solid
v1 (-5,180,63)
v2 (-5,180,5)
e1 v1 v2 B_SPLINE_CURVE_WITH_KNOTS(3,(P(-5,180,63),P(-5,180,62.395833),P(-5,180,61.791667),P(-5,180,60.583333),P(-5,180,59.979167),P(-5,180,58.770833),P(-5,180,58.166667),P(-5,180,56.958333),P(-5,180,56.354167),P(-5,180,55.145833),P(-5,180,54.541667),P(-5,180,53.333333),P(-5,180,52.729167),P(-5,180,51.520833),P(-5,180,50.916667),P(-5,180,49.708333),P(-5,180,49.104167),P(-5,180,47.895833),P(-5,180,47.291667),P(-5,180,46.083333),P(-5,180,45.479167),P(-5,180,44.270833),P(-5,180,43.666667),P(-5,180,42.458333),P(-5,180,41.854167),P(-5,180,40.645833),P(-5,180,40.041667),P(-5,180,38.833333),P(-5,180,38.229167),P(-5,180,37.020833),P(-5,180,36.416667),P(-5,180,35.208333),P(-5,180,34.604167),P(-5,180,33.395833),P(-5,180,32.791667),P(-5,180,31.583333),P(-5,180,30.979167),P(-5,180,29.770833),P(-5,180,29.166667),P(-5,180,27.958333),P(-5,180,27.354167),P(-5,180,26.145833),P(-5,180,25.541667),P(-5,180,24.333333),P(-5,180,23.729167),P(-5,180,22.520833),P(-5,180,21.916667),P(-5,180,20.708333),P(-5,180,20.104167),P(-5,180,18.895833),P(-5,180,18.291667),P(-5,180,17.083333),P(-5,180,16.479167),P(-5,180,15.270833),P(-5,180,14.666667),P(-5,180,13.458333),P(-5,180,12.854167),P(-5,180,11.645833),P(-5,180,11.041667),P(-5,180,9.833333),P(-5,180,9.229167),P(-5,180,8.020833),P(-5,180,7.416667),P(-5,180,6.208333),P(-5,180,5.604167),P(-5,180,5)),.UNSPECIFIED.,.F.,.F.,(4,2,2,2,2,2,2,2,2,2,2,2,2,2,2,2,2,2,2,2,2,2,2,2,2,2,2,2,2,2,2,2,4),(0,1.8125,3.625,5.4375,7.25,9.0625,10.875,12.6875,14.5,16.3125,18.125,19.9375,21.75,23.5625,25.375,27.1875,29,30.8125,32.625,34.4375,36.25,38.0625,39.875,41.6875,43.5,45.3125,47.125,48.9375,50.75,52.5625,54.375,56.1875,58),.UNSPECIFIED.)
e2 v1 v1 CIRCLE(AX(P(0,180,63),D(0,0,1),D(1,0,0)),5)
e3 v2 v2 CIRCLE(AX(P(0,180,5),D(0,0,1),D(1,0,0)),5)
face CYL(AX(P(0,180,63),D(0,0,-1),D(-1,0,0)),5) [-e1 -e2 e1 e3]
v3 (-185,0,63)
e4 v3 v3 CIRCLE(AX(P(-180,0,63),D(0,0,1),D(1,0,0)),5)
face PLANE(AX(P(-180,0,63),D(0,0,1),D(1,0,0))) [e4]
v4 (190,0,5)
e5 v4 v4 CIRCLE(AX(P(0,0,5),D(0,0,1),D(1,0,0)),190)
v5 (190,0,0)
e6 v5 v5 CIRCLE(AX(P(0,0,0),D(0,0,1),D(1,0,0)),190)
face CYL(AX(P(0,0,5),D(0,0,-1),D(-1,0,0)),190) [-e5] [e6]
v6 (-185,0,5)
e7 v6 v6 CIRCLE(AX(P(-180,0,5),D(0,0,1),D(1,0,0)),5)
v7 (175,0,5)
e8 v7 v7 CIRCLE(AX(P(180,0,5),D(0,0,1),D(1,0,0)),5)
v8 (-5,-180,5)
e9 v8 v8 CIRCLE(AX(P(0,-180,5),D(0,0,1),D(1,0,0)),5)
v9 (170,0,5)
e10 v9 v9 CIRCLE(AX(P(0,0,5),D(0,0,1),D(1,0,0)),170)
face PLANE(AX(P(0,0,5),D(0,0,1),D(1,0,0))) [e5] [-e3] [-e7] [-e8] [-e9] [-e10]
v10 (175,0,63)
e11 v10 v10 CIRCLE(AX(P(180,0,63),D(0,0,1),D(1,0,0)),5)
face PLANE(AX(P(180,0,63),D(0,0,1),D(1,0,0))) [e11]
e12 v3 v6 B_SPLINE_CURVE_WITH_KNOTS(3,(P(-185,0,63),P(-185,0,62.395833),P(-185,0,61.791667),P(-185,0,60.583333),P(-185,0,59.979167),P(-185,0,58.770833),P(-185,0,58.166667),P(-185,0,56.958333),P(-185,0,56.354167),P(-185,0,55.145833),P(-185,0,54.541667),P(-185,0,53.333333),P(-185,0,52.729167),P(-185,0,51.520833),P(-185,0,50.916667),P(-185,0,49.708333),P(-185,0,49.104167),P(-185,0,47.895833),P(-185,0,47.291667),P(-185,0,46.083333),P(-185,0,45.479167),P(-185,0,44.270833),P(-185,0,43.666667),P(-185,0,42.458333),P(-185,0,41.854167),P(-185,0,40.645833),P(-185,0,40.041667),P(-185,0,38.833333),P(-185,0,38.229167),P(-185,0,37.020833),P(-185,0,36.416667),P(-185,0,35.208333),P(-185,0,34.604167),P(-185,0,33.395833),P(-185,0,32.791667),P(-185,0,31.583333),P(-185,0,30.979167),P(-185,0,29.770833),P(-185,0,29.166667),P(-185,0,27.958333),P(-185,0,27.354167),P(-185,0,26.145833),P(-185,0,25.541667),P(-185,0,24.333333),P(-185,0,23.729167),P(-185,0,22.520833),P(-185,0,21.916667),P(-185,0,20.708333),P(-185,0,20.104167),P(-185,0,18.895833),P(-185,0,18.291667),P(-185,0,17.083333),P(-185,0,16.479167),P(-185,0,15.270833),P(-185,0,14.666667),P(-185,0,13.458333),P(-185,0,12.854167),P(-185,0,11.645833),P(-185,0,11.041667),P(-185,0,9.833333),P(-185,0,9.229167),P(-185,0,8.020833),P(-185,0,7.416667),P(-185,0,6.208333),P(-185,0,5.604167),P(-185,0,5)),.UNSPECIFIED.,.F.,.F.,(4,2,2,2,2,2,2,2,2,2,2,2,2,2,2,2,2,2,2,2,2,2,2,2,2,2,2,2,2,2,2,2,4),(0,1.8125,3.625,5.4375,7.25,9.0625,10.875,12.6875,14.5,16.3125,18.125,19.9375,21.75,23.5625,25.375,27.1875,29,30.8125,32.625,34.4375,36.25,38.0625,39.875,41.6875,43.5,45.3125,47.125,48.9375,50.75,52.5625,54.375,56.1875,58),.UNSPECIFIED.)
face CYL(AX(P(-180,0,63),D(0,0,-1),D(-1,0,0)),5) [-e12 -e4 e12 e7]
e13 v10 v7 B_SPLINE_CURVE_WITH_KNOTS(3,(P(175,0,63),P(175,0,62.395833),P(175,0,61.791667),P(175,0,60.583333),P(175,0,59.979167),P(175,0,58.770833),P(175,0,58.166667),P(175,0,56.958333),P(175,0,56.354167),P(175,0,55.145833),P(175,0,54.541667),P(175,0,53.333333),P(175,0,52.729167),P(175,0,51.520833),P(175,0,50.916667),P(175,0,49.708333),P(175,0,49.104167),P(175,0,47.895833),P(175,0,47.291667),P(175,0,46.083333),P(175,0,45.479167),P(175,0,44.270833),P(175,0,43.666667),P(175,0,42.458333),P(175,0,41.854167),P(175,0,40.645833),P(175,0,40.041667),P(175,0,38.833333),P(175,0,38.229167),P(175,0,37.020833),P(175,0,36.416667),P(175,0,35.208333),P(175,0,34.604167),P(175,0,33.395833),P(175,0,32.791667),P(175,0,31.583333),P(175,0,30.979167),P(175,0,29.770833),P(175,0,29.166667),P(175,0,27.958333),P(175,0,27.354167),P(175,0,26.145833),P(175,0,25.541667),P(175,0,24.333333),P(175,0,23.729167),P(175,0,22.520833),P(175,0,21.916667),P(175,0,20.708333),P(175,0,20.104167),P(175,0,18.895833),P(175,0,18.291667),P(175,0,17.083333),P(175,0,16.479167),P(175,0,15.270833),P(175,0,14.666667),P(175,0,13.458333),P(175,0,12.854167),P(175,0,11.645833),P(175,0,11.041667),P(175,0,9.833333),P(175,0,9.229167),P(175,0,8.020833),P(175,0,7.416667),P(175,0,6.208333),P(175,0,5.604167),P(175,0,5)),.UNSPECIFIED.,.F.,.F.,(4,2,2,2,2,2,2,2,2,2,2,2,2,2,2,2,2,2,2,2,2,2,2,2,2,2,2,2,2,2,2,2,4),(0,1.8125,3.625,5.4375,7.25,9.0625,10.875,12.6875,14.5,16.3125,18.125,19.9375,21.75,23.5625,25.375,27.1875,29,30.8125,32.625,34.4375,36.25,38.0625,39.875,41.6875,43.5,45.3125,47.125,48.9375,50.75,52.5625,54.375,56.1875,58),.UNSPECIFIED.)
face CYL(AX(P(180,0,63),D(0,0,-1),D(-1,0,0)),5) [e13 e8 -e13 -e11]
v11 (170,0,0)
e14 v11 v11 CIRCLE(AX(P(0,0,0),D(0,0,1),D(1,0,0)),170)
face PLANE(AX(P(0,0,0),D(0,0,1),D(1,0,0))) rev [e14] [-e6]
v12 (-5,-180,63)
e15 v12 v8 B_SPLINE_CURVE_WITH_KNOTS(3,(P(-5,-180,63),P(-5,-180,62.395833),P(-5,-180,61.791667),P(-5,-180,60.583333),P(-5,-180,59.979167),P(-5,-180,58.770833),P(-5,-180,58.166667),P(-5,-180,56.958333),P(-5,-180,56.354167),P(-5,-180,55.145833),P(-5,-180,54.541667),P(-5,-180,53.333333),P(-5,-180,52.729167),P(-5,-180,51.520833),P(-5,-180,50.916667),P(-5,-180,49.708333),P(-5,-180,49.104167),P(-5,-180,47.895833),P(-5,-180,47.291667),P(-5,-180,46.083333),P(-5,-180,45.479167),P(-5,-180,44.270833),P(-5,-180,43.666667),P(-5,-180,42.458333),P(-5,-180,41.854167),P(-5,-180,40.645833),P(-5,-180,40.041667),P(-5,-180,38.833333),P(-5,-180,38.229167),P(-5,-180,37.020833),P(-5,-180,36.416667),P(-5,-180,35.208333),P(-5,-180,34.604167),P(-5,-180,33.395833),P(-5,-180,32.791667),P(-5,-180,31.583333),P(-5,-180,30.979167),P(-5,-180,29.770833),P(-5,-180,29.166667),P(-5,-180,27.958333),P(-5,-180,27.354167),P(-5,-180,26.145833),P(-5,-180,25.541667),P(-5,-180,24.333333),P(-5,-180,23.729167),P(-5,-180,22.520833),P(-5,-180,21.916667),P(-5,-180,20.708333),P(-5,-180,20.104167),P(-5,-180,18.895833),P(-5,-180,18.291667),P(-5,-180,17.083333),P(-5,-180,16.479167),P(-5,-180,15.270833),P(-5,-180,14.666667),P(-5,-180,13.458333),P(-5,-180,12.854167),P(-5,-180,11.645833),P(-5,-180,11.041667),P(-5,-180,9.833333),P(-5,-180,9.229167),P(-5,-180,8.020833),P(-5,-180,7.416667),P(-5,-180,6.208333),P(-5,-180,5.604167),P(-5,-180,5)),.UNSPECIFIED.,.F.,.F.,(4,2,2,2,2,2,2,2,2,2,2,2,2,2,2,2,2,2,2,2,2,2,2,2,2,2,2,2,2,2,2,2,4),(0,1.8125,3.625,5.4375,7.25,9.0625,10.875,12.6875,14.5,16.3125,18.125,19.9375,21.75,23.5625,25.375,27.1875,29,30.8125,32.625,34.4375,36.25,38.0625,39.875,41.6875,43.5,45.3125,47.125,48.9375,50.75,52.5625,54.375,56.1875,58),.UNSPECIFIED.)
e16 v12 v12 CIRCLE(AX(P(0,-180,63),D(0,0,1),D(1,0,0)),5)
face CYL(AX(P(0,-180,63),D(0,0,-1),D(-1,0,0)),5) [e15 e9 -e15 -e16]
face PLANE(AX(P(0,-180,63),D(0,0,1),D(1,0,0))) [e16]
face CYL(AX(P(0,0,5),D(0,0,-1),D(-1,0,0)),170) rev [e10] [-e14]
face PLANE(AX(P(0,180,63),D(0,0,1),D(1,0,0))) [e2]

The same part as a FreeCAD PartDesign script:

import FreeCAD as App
import Part
import Sketcher

V = App.Vector

doc = App.newDocument("Part")
body = doc.addObject("PartDesign::Body", "Body")

sketch1 = body.newObject("Sketcher::SketchObject", "Sketch")
sketch1.AttachmentSupport = (doc.getObject("XY_Plane"), [""])
sketch1.MapMode = "FlatFace"
sketch1.addGeometry([
    Part.Circle(V(0, 0, 0), V(0, 0, 1), 190),
    Part.Circle(V(0, 0, 0), V(0, 0, 1), 170),
], False)
sketch1.addConstraint([
    Sketcher.Constraint("Coincident", 0, 3, -1, 1),
    Sketcher.Constraint("Coincident", 1, 3, -1, 1),
    Sketcher.Constraint("Diameter", 0, 380.0),
    Sketcher.Constraint("Diameter", 1, 340.0),
])
pad1 = body.newObject("PartDesign::Pad", "Pad")
pad1.Profile = sketch1
pad1.Length = 5

sketch2 = body.newObject("Sketcher::SketchObject", "Sketch001")
sketch2.AttachmentSupport = (doc.getObject("XY_Plane"), [""])
sketch2.MapMode = "FlatFace"
sketch2.AttachmentOffset = App.Placement(V(0, 0, 5), App.Rotation())
sketch2.addGeometry([
    Part.Circle(V(0, 180, 0), V(0, 0, 1), 5),
    Part.Circle(V(-180, 0, 0), V(0, 0, 1), 5),
    Part.Circle(V(0, -180, 0), V(0, 0, 1), 5),
    Part.Circle(V(180, 0, 0), V(0, 0, 1), 5),
], False)
sketch2.addConstraint([
    Sketcher.Constraint("Equal", 0, 1),
    Sketcher.Constraint("Equal", 1, 2),
    Sketcher.Constraint("Equal", 2, 3),
    Sketcher.Constraint("Symmetric", 0, 3, 2, 3, -1, 1),
    Sketcher.Constraint("Symmetric", 1, 3, 3, 3, -1, 1),
    Sketcher.Constraint("PointOnObject", 0, 3, -2),
    Sketcher.Constraint("PointOnObject", 1, 3, -1),
    Sketcher.Constraint("Diameter", 0, 10.0),
    Sketcher.Constraint("DistanceY", -1, 1, 0, 3, 180.0),
    Sketcher.Constraint("DistanceX", 1, 3, -1, 1, 180.0),
])
pad2 = body.newObject("PartDesign::Pad", "Pad001")
pad2.Profile = sketch2
pad2.Length = 58

doc.recompute()
